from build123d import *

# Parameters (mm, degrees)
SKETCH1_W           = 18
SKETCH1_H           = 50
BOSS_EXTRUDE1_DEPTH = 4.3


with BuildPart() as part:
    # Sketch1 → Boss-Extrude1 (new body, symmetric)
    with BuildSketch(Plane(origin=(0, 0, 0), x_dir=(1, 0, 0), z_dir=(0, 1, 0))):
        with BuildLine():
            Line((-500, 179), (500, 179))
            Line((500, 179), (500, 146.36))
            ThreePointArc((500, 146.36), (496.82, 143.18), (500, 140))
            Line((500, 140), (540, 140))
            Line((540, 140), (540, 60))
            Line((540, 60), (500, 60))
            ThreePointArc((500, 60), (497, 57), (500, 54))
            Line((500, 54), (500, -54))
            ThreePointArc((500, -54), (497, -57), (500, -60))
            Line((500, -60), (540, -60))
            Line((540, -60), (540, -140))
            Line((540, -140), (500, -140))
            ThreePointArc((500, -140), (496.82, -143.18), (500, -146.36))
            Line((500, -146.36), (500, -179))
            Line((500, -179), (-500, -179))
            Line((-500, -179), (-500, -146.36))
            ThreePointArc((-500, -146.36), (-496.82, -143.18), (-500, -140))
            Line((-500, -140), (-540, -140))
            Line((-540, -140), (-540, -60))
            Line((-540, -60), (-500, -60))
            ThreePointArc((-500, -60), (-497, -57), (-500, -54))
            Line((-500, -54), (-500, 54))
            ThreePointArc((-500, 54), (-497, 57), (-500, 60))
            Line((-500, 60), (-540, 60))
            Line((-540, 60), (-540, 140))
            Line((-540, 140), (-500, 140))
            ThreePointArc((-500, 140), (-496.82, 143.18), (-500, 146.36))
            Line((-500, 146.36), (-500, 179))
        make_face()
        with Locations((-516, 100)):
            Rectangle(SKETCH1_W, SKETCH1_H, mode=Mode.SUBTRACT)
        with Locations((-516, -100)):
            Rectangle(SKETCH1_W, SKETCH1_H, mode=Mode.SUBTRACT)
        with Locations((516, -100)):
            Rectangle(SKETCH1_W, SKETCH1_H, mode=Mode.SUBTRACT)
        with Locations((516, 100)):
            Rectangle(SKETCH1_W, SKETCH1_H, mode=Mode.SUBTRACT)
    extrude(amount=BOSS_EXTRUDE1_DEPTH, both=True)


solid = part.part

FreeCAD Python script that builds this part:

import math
import FreeCAD as App
import Part
import Sketcher
from FreeCAD import Vector
Q = App.Units.Quantity

doc = App.newDocument("Part")
body = doc.addObject("PartDesign::Body", "Body")

# Sketch on XZ plane
sketch1 = body.newObject("Sketcher::SketchObject", "Sketch")
sketch1.AttachmentSupport = (doc.getObject("XZ_Plane"), [""])
sketch1.MapMode = "FlatFace"
sketch1.addGeometry([
    Part.LineSegment(Vector(500, -179, 0), Vector(-500, -179, 0)),  # 0
    Part.LineSegment(Vector(-500, -179, 0), Vector(-500, -146.4, 0)),  # 1
    Part.ArcOfCircle(Part.Circle(Vector(-500, -143.2, 0), Vector(0, 0, 1), 3.2), math.radians(-90), math.radians(90)),  # 2
    Part.LineSegment(Vector(-500, -140, 0), Vector(-540, -140, 0)),  # 3
    Part.LineSegment(Vector(-540, -140, 0), Vector(-540, -60, 0)),  # 4
    Part.LineSegment(Vector(-540, -60, 0), Vector(-500, -60, 0)),  # 5
    Part.ArcOfCircle(Part.Circle(Vector(-500, -57, 0), Vector(0, 0, 1), 3), math.radians(-90), math.radians(90)),  # 6
    Part.LineSegment(Vector(-500, -54, 0), Vector(-500, 54, 0)),  # 7
    Part.ArcOfCircle(Part.Circle(Vector(-500, 57, 0), Vector(0, 0, 1), 3), math.radians(-90), math.radians(90)),  # 8
    Part.LineSegment(Vector(-500, 60, 0), Vector(-540, 60, 0)),  # 9
    Part.LineSegment(Vector(-540, 60, 0), Vector(-540, 140, 0)),  # 10
    Part.LineSegment(Vector(-540, 140, 0), Vector(-500, 140, 0)),  # 11
    Part.ArcOfCircle(Part.Circle(Vector(-500, 143.2, 0), Vector(0, 0, 1), 3.2), math.radians(-90), math.radians(90)),  # 12
    Part.LineSegment(Vector(-500, 146.4, 0), Vector(-500, 179, 0)),  # 13
    Part.LineSegment(Vector(-500, 179, 0), Vector(500, 179, 0)),  # 14
    Part.LineSegment(Vector(500, 179, 0), Vector(500, 146.4, 0)),  # 15
    Part.ArcOfCircle(Part.Circle(Vector(500, 143.2, 0), Vector(0, 0, 1), 3.2), math.radians(90), math.radians(270)),  # 16
    Part.LineSegment(Vector(500, 140, 0), Vector(540, 140, 0)),  # 17
    Part.LineSegment(Vector(540, 140, 0), Vector(540, 60, 0)),  # 18
    Part.LineSegment(Vector(540, 60, 0), Vector(500, 60, 0)),  # 19
    Part.ArcOfCircle(Part.Circle(Vector(500, 57, 0), Vector(0, 0, 1), 3), math.radians(90), math.radians(270)),  # 20
    Part.LineSegment(Vector(500, 54, 0), Vector(500, -54, 0)),  # 21
    Part.ArcOfCircle(Part.Circle(Vector(500, -57, 0), Vector(0, 0, 1), 3), math.radians(90), math.radians(270)),  # 22
    Part.LineSegment(Vector(500, -60, 0), Vector(540, -60, 0)),  # 23
    Part.LineSegment(Vector(540, -60, 0), Vector(540, -140, 0)),  # 24
    Part.LineSegment(Vector(540, -140, 0), Vector(500, -140, 0)),  # 25
    Part.ArcOfCircle(Part.Circle(Vector(500, -143.2, 0), Vector(0, 0, 1), 3.2), math.radians(90), math.radians(270)),  # 26
    Part.LineSegment(Vector(500, -146.4, 0), Vector(500, -179, 0)),  # 27
    Part.LineSegment(Vector(507, 125, 0), Vector(507, 75, 0)),  # 28
    Part.LineSegment(Vector(507, 75, 0), Vector(525, 75, 0)),  # 29
    Part.LineSegment(Vector(525, 75, 0), Vector(525, 125, 0)),  # 30
    Part.LineSegment(Vector(525, 125, 0), Vector(507, 125, 0)),  # 31
    Part.LineSegment(Vector(-525, 125, 0), Vector(-525, 75, 0)),  # 32
    Part.LineSegment(Vector(-525, 75, 0), Vector(-507, 75, 0)),  # 33
    Part.LineSegment(Vector(-507, 75, 0), Vector(-507, 125, 0)),  # 34
    Part.LineSegment(Vector(-507, 125, 0), Vector(-525, 125, 0)),  # 35
    Part.LineSegment(Vector(507, -75, 0), Vector(507, -125, 0)),  # 36
    Part.LineSegment(Vector(507, -125, 0), Vector(525, -125, 0)),  # 37
    Part.LineSegment(Vector(525, -125, 0), Vector(525, -75, 0)),  # 38
    Part.LineSegment(Vector(525, -75, 0), Vector(507, -75, 0)),  # 39
    Part.LineSegment(Vector(-525, -75, 0), Vector(-525, -125, 0)),  # 40
    Part.LineSegment(Vector(-525, -125, 0), Vector(-507, -125, 0)),  # 41
    Part.LineSegment(Vector(-507, -125, 0), Vector(-507, -75, 0)),  # 42
    Part.LineSegment(Vector(-507, -75, 0), Vector(-525, -75, 0)),  # 43
], False)
sketch1.addConstraint([
    Sketcher.Constraint("Coincident", 0, 2, 1, 1),
    Sketcher.Constraint("Coincident", 1, 2, 2, 1),
    Sketcher.Constraint("Tangent", 2, 2, 3, 1),
    Sketcher.Constraint("Coincident", 3, 2, 4, 1),
    Sketcher.Constraint("Coincident", 4, 2, 5, 1),
    Sketcher.Constraint("Tangent", 5, 2, 6, 1),
    Sketcher.Constraint("Coincident", 6, 2, 7, 1),
    Sketcher.Constraint("Coincident", 7, 2, 8, 1),
    Sketcher.Constraint("Tangent", 8, 2, 9, 1),
    Sketcher.Constraint("Coincident", 9, 2, 10, 1),
    Sketcher.Constraint("Coincident", 10, 2, 11, 1),
    Sketcher.Constraint("Tangent", 11, 2, 12, 1),
    Sketcher.Constraint("Coincident", 12, 2, 13, 1),
    Sketcher.Constraint("Coincident", 13, 2, 14, 1),
    Sketcher.Constraint("Coincident", 14, 2, 15, 1),
    Sketcher.Constraint("Coincident", 15, 2, 16, 1),
    Sketcher.Constraint("Tangent", 16, 2, 17, 1),
    Sketcher.Constraint("Coincident", 17, 2, 18, 1),
    Sketcher.Constraint("Coincident", 18, 2, 19, 1),
    Sketcher.Constraint("Tangent", 19, 2, 20, 1),
    Sketcher.Constraint("Coincident", 20, 2, 21, 1),
    Sketcher.Constraint("Coincident", 21, 2, 22, 1),
    Sketcher.Constraint("Tangent", 22, 2, 23, 1),
    Sketcher.Constraint("Coincident", 23, 2, 24, 1),
    Sketcher.Constraint("Coincident", 24, 2, 25, 1),
    Sketcher.Constraint("Tangent", 25, 2, 26, 1),
    Sketcher.Constraint("Coincident", 26, 2, 27, 1),
    Sketcher.Constraint("Coincident", 27, 2, 0, 1),
    Sketcher.Constraint("Coincident", 28, 2, 29, 1),
    Sketcher.Constraint("Coincident", 29, 2, 30, 1),
    Sketcher.Constraint("Coincident", 30, 2, 31, 1),
    Sketcher.Constraint("Coincident", 31, 2, 28, 1),
    Sketcher.Constraint("Coincident", 32, 2, 33, 1),
    Sketcher.Constraint("Coincident", 33, 2, 34, 1),
    Sketcher.Constraint("Coincident", 34, 2, 35, 1),
    Sketcher.Constraint("Coincident", 35, 2, 32, 1),
    Sketcher.Constraint("Coincident", 36, 2, 37, 1),
    Sketcher.Constraint("Coincident", 37, 2, 38, 1),
    Sketcher.Constraint("Coincident", 38, 2, 39, 1),
    Sketcher.Constraint("Coincident", 39, 2, 36, 1),
    Sketcher.Constraint("Coincident", 40, 2, 41, 1),
    Sketcher.Constraint("Coincident", 41, 2, 42, 1),
    Sketcher.Constraint("Coincident", 42, 2, 43, 1),
    Sketcher.Constraint("Coincident", 43, 2, 40, 1),
    Sketcher.Constraint("Horizontal", 0),
    Sketcher.Constraint("Vertical", 1),
    Sketcher.Constraint("Horizontal", 3),
    Sketcher.Constraint("Vertical", 4),
    Sketcher.Constraint("Horizontal", 5),
    Sketcher.Constraint("Vertical", 7),
    Sketcher.Constraint("Horizontal", 9),
    Sketcher.Constraint("Vertical", 10),
    Sketcher.Constraint("Horizontal", 11),
    Sketcher.Constraint("Vertical", 13),
    Sketcher.Constraint("Horizontal", 14),
    Sketcher.Constraint("Vertical", 15),
    Sketcher.Constraint("Horizontal", 17),
    Sketcher.Constraint("Vertical", 18),
    Sketcher.Constraint("Horizontal", 19),
    Sketcher.Constraint("Vertical", 21),
    Sketcher.Constraint("Horizontal", 23),
    Sketcher.Constraint("Vertical", 24),
    Sketcher.Constraint("Horizontal", 25),
    Sketcher.Constraint("Vertical", 27),
    Sketcher.Constraint("Vertical", 28),
    Sketcher.Constraint("Horizontal", 29),
    Sketcher.Constraint("Vertical", 30),
    Sketcher.Constraint("Horizontal", 31),
    Sketcher.Constraint("Vertical", 32),
    Sketcher.Constraint("Horizontal", 33),
    Sketcher.Constraint("Vertical", 34),
    Sketcher.Constraint("Horizontal", 35),
    Sketcher.Constraint("Vertical", 36),
    Sketcher.Constraint("Horizontal", 37),
    Sketcher.Constraint("Vertical", 38),
    Sketcher.Constraint("Horizontal", 39),
    Sketcher.Constraint("Vertical", 40),
    Sketcher.Constraint("Horizontal", 41),
    Sketcher.Constraint("Vertical", 42),
    Sketcher.Constraint("Horizontal", 43),
    Sketcher.Constraint("Equal", 6, 8),
    Sketcher.Constraint("Equal", 2, 12),
    Sketcher.Constraint("Equal", 12, 16),
    Sketcher.Constraint("Equal", 8, 20),
    Sketcher.Constraint("Equal", 20, 22),
    Sketcher.Constraint("Equal", 16, 26),
    Sketcher.Constraint("Symmetric", 2, 3, 16, 3, -1, 1),
    Sketcher.Constraint("Symmetric", 6, 3, 20, 3, -1, 1),
    Sketcher.Constraint("Symmetric", 8, 3, 22, 3, -1, 1),
    Sketcher.Constraint("Symmetric", 12, 3, 26, 3, -1, 1),
    Sketcher.Constraint("Symmetric", 0, 2, 14, 2, -1, 1),
    Sketcher.Constraint("Symmetric", 34, 2, 36, 2, -1, 1),
    Sketcher.Constraint("Symmetric", 32, 2, 38, 2, -1, 1),
    Sketcher.Constraint("Symmetric", 30, 2, 40, 2, -1, 1),
    Sketcher.Constraint("Symmetric", 28, 2, 42, 2, -1, 1),
    Sketcher.Constraint("Symmetric", 12, 3, 16, 3, -2),
    Sketcher.Constraint("Symmetric", 8, 3, 20, 3, -2),
    Sketcher.Constraint("Symmetric", 29, 2, 32, 2, -2),
    Sketcher.Constraint("Symmetric", 31, 2, 34, 2, -2),
    Sketcher.Constraint("Vertical", 2, 3, 6, 3),
    Sketcher.Constraint("Vertical", 12, 3, 0, 2),
    Sketcher.Constraint("Vertical", 5, 2, 6, 2),
    Sketcher.Constraint("Vertical", 4, 2, 9, 2),
    Sketcher.Constraint("Vertical", 11, 2, 12, 2),
    Sketcher.Constraint("Vertical", 19, 2, 20, 2),
    Sketcher.Constraint("Vertical", 18, 2, 23, 2),
    Sketcher.Constraint("Vertical", 25, 2, 26, 2),
    Sketcher.Constraint("Equal", 11, 17),
    Sketcher.Constraint("Radius", 6, Q("3 mm")),
    Sketcher.Constraint("DistanceX", 0, 2, 0, 1, Q("1000 mm")),
    Sketcher.Constraint("DistanceX", 3, 2, 3, 1, Q("40 mm")),
    Sketcher.Constraint("DistanceX", 29, 1, 29, 2, Q("18 mm")),
    Sketcher.Constraint("DistanceY", 4, 1, 4, 2, Q("80 mm")),
    Sketcher.Constraint("DistanceY", 7, 1, 7, 2, Q("108 mm")),
    Sketcher.Constraint("DistanceY", 28, 2, 28, 1, Q("50 mm")),
    Sketcher.Constraint("Radius", 2, Q("3.18 mm")),
    Sketcher.Constraint("DistanceY", 0, 2, -1, 1, Q("179 mm")),
    Sketcher.Constraint("DistanceX", -1, 1, 28, 2, Q("507 mm")),
    Sketcher.Constraint("DistanceY", -1, 1, 28, 2, Q("75 mm")),
])
pad1 = body.newObject("PartDesign::Pad", "Pad")
pad1.Profile = sketch1
pad1.Length = 8.6
pad1.Midplane = True

doc.recompute()
